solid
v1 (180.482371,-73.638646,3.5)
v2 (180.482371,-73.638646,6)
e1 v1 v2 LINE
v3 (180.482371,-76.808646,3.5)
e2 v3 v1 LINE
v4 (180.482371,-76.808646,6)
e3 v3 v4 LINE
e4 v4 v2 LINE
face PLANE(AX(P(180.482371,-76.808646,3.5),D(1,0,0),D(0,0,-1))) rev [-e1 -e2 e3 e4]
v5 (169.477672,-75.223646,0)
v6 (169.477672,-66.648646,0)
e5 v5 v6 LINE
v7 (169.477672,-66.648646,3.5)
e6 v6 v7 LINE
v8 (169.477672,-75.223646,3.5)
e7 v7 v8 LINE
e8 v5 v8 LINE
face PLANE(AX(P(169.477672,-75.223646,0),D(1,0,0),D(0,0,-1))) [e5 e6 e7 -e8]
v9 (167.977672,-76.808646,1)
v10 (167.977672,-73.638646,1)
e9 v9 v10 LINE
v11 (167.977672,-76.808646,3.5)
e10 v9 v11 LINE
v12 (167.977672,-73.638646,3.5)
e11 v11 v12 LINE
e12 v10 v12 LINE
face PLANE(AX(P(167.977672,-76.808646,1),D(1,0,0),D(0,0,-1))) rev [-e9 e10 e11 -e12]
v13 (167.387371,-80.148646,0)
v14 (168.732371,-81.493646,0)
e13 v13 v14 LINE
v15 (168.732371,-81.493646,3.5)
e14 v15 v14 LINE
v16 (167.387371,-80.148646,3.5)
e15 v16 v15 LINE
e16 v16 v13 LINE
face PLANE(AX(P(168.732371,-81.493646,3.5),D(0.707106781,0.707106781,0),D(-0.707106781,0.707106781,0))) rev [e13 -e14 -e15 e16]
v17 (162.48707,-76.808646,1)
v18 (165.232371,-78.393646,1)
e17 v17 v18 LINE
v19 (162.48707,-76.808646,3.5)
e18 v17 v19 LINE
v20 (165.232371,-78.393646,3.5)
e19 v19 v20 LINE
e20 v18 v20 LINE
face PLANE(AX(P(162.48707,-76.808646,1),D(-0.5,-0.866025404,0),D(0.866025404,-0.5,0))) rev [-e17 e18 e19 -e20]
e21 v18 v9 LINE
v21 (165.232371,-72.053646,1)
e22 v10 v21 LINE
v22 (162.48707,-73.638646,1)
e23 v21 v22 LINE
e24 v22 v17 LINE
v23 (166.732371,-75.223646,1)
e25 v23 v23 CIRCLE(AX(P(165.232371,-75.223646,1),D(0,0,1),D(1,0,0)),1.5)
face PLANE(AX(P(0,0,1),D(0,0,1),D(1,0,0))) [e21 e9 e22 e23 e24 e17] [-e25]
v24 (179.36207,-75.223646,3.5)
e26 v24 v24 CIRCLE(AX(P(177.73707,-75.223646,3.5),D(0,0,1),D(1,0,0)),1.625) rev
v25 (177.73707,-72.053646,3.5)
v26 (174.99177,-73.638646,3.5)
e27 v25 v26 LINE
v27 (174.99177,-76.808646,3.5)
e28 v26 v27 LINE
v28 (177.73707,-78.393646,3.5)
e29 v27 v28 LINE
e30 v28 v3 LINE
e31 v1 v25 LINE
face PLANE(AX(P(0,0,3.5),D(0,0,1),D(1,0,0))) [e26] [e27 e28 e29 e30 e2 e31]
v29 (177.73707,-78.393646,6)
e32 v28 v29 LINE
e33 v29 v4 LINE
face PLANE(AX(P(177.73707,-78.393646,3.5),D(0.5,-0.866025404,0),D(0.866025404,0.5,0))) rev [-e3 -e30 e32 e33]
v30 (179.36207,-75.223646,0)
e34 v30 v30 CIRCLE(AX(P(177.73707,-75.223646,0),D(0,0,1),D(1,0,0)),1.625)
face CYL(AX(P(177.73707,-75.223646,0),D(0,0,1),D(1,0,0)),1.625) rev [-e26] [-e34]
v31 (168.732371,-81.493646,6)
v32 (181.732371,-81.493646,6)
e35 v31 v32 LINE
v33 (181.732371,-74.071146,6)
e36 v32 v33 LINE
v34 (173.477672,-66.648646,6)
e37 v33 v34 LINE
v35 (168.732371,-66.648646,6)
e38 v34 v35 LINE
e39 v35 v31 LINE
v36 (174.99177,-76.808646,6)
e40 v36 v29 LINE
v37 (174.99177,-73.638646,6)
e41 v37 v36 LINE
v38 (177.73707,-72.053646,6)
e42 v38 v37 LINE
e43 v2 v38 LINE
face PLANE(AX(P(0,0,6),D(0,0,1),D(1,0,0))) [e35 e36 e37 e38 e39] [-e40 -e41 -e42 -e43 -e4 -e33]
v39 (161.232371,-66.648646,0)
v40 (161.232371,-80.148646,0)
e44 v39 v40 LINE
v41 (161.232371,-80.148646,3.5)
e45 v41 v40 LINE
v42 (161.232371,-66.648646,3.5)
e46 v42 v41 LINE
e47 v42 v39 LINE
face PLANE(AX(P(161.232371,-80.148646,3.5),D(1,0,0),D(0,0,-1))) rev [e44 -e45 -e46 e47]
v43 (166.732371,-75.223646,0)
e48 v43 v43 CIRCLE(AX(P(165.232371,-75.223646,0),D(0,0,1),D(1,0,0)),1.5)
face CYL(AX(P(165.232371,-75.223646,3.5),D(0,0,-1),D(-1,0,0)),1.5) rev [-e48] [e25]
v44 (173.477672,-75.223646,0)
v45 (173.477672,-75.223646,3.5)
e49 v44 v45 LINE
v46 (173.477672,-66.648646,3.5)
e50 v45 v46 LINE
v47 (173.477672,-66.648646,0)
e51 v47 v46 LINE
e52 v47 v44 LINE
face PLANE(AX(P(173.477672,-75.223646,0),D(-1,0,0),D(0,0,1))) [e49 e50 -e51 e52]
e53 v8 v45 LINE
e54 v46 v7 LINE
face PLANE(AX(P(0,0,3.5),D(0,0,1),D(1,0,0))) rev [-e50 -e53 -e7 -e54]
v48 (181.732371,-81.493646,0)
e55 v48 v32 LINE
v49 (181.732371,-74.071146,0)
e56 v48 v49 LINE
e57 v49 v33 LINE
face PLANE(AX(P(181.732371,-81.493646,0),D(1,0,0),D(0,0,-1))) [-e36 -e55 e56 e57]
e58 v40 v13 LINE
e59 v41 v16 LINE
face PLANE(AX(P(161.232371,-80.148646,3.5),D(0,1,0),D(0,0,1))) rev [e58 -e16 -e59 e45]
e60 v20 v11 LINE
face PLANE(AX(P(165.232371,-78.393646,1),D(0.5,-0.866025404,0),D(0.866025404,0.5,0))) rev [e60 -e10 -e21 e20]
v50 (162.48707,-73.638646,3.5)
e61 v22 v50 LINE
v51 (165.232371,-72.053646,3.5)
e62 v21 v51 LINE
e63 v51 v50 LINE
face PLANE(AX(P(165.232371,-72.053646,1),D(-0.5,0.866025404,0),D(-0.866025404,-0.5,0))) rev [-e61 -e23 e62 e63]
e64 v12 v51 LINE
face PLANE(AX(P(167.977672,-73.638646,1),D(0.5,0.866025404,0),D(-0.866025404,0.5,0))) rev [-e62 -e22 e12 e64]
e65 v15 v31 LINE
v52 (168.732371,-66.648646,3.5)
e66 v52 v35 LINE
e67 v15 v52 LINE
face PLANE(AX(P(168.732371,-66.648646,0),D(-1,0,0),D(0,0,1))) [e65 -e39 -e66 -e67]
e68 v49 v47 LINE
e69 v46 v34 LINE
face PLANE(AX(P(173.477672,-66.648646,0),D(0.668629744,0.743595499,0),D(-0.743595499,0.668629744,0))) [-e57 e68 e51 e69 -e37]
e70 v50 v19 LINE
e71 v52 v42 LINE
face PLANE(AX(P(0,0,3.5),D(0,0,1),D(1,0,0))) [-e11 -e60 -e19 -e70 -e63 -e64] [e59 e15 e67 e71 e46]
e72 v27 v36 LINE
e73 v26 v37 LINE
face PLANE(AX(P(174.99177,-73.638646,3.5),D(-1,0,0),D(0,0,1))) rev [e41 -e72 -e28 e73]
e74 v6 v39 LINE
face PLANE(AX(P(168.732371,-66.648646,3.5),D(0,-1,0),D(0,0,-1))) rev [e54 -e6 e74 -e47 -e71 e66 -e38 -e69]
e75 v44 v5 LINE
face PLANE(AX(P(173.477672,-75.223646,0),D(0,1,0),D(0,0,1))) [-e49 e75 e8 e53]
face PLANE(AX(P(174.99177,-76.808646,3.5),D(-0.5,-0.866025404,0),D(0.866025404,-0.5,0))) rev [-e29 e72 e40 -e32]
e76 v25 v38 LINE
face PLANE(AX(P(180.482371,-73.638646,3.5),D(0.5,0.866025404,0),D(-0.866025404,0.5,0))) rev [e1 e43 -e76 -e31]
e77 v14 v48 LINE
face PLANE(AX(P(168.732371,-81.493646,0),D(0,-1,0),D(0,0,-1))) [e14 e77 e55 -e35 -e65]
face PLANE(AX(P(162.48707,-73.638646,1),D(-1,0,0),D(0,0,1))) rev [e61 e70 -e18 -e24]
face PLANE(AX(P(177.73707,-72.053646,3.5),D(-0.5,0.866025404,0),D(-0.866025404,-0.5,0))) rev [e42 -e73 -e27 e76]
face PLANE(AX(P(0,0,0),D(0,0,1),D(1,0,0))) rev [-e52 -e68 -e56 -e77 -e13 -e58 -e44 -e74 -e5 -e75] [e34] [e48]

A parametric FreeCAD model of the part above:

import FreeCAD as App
import Part
import Sketcher
from FreeCAD import Vector
Q = App.Units.Quantity

doc = App.newDocument("Part")
body = doc.addObject("PartDesign::Body", "Body")

# Sketch on XY plane
sketch1 = body.newObject("Sketcher::SketchObject", "Sketch")
sketch1.AttachmentSupport = (doc.getObject("XY_Plane"), [""])
sketch1.MapMode = "FlatFace"
sketch1.addGeometry([
    Part.LineSegment(Vector(168.7, -66.6, 0), Vector(161.2, -66.6, 0)),  # 0
    Part.LineSegment(Vector(161.2, -66.6, 0), Vector(161.2, -80.1, 0)),  # 1
    Part.LineSegment(Vector(161.2, -80.1, 0), Vector(167.4, -80.1, 0)),  # 2
    Part.LineSegment(Vector(167.4, -80.1, 0), Vector(168.7, -81.5, 0)),  # 3
    Part.LineSegment(Vector(168.7, -81.5, 0), Vector(168.7, -66.6, 0)),  # 4
    Part.Circle(Vector(165.2, -75.2, 0), Vector(0, 0, 1), 1.5),  # 5
], False)
sketch1.addConstraint([
    Sketcher.Constraint("Coincident", 0, 2, 1, 1),
    Sketcher.Constraint("Coincident", 1, 2, 2, 1),
    Sketcher.Constraint("Coincident", 2, 2, 3, 1),
    Sketcher.Constraint("Coincident", 3, 2, 4, 1),
    Sketcher.Constraint("Coincident", 4, 2, 0, 1),
    Sketcher.Constraint("Horizontal", 0),
    Sketcher.Constraint("Vertical", 1),
    Sketcher.Constraint("Horizontal", 2),
    Sketcher.Constraint("Vertical", 4),
    Sketcher.Constraint("Diameter", 5, Q("3 mm")),
    Sketcher.Constraint("Angle", 3, Q("-45 deg")),
    Sketcher.Constraint("DistanceX", 0, 2, 0, 1, Q("7.5 mm")),
    Sketcher.Constraint("DistanceY", 1, 2, 1, 1, Q("13.5 mm")),
    Sketcher.Constraint("DistanceX", 0, 2, 5, 3, Q("4 mm")),
    Sketcher.Constraint("DistanceX", 2, 1, 2, 2, Q("6.155 mm")),
    Sketcher.Constraint("DistanceY", 3, 2, 5, 3, Q("6.27 mm")),
    Sketcher.Constraint("DistanceX", -1, 1, 5, 3, Q("165.232371 mm")),
    Sketcher.Constraint("DistanceY", 5, 3, -1, 1, Q("75.223646 mm")),
])
pad1 = body.newObject("PartDesign::Pad", "Pad")
pad1.Profile = sketch1
pad1.Length = 3.5

# Sketch on XY plane
sketch2 = body.newObject("Sketcher::SketchObject", "Sketch001")
sketch2.AttachmentSupport = (doc.getObject("XY_Plane"), [""])
sketch2.MapMode = "FlatFace"
sketch2.AttachmentOffset = App.Placement(Vector(0, 0, 3.5), App.Rotation())
sketch2.addGeometry([
    Part.LineSegment(Vector(168.7, -81.5, 0), Vector(181.7, -81.5, 0)),  # 0
    Part.LineSegment(Vector(181.7, -81.5, 0), Vector(181.7, -74.1, 0)),  # 1
    Part.LineSegment(Vector(181.7, -74.1, 0), Vector(173.5, -66.6, 0)),  # 2
    Part.LineSegment(Vector(173.5, -66.6, 0), Vector(173.5, -75.2, 0)),  # 3
    Part.LineSegment(Vector(173.5, -75.2, 0), Vector(169.5, -75.2, 0)),  # 4
    Part.LineSegment(Vector(169.5, -75.2, 0), Vector(169.5, -66.6, 0)),  # 5
    Part.LineSegment(Vector(169.5, -66.6, 0), Vector(168.7, -66.6, 0)),  # 6
    Part.LineSegment(Vector(168.7, -66.6, 0), Vector(168.7, -81.5, 0)),  # 7
    Part.Circle(Vector(177.7, -75.2, 0), Vector(0, 0, 1), 1.6),  # 8
], False)
sketch2.addConstraint([
    Sketcher.Constraint("Coincident", 0, 2, 1, 1),
    Sketcher.Constraint("Coincident", 1, 2, 2, 1),
    Sketcher.Constraint("Coincident", 2, 2, 3, 1),
    Sketcher.Constraint("Coincident", 3, 2, 4, 1),
    Sketcher.Constraint("Coincident", 4, 2, 5, 1),
    Sketcher.Constraint("Coincident", 5, 2, 6, 1),
    Sketcher.Constraint("Coincident", 6, 2, 7, 1),
    Sketcher.Constraint("Coincident", 7, 2, 0, 1),
    Sketcher.Constraint("Horizontal", 0),
    Sketcher.Constraint("Vertical", 1),
    Sketcher.Constraint("Vertical", 3),
    Sketcher.Constraint("Horizontal", 4),
    Sketcher.Constraint("Vertical", 5),
    Sketcher.Constraint("Horizontal", 6),
    Sketcher.Constraint("Vertical", 7),
    Sketcher.Constraint("Horizontal", 8, 3, 3, 2),
    Sketcher.Constraint("Horizontal", 2, 2, 5, 2),
    Sketcher.Constraint("Diameter", 8, Q("3.25 mm")),
    Sketcher.Constraint("DistanceX", 0, 1, 0, 2, Q("13 mm")),
    Sketcher.Constraint("DistanceX", 4, 2, 4, 1, Q("4 mm")),
    Sketcher.Constraint("DistanceY", 3, 2, 3, 1, Q("8.575 mm")),
    Sketcher.Constraint("DistanceY", 7, 2, 7, 1, Q("14.845 mm")),
    Sketcher.Constraint("DistanceX", 6, 2, 6, 1, Q("0.745301 mm")),
    Sketcher.Constraint("DistanceY", 1, 1, 1, 2, Q("7.4225 mm")),
    Sketcher.Constraint("DistanceX", 8, 3, 0, 2, Q("3.995301 mm")),
    Sketcher.Constraint("DistanceX", -1, 1, 8, 3, Q("177.73707 mm")),
    Sketcher.Constraint("DistanceY", 8, 3, -1, 1, Q("75.223646 mm")),
])
pad2 = body.newObject("PartDesign::Pad", "Pad001")
pad2.Profile = sketch2
pad2.Type = "TwoLengths"
pad2.Length = 2.5
pad2.Length2 = 3.5

# Sketch on XY plane
sketch3 = body.newObject("Sketcher::SketchObject", "Sketch002")
sketch3.AttachmentSupport = (doc.getObject("XY_Plane"), [""])
sketch3.MapMode = "FlatFace"
sketch3.AttachmentOffset = App.Placement(Vector(0, 0, 6), App.Rotation())
sketch3.addGeometry([
    Part.LineSegment(Vector(177.7, -78.4, 0), Vector(180.5, -76.8, 0)),  # 0
    Part.LineSegment(Vector(180.5, -76.8, 0), Vector(180.5, -73.6, 0)),  # 1
    Part.LineSegment(Vector(180.5, -73.6, 0), Vector(177.7, -72.1, 0)),  # 2
    Part.LineSegment(Vector(177.7, -72.1, 0), Vector(175, -73.6, 0)),  # 3
    Part.LineSegment(Vector(175, -73.6, 0), Vector(175, -76.8, 0)),  # 4
    Part.LineSegment(Vector(175, -76.8, 0), Vector(177.7, -78.4, 0)),  # 5
], False)
sketch3.addConstraint([
    Sketcher.Constraint("Coincident", 0, 2, 1, 1),
    Sketcher.Constraint("Coincident", 1, 2, 2, 1),
    Sketcher.Constraint("Coincident", 2, 2, 3, 1),
    Sketcher.Constraint("Coincident", 3, 2, 4, 1),
    Sketcher.Constraint("Coincident", 4, 2, 5, 1),
    Sketcher.Constraint("Coincident", 5, 2, 0, 1),
    Sketcher.Constraint("Vertical", 1),
    Sketcher.Constraint("Vertical", 4),
    Sketcher.Constraint("Parallel", 0, 3),
    Sketcher.Constraint("Parallel", 2, 5),
    Sketcher.Constraint("Horizontal", 1, 2, 3, 2),
    Sketcher.Constraint("Horizontal", 0, 2, 4, 2),
    Sketcher.Constraint("Vertical", 2, 2, 5, 2),
    Sketcher.Constraint("Angle", 0, Q("30 deg")),
    Sketcher.Constraint("DistanceY", 1, 1, 1, 2, Q("3.17 mm")),
    Sketcher.Constraint("Distance", 0, Q("3.17 mm")),
    Sketcher.Constraint("DistanceX", -1, 1, 0, 2, Q("180.482371 mm")),
    Sketcher.Constraint("DistanceY", 0, 2, -1, 1, Q("76.808646 mm")),
])
pocket1 = body.newObject("PartDesign::Pocket", "Pocket")
pocket1.Profile = sketch3
pocket1.Length = 2.5

# Sketch on XY plane
sketch4 = body.newObject("Sketcher::SketchObject", "Sketch003")
sketch4.AttachmentSupport = (doc.getObject("XY_Plane"), [""])
sketch4.MapMode = "FlatFace"
sketch4.AttachmentOffset = App.Placement(Vector(0, 0, 3.5), App.Rotation())
sketch4.addGeometry([
    Part.LineSegment(Vector(165.2, -78.4, 0), Vector(168, -76.8, 0)),  # 0
    Part.LineSegment(Vector(168, -76.8, 0), Vector(168, -73.6, 0)),  # 1
    Part.LineSegment(Vector(168, -73.6, 0), Vector(165.2, -72.1, 0)),  # 2
    Part.LineSegment(Vector(165.2, -72.1, 0), Vector(162.5, -73.6, 0)),  # 3
    Part.LineSegment(Vector(162.5, -73.6, 0), Vector(162.5, -76.8, 0)),  # 4
    Part.LineSegment(Vector(162.5, -76.8, 0), Vector(165.2, -78.4, 0)),  # 5
], False)
sketch4.addConstraint([
    Sketcher.Constraint("Coincident", 0, 2, 1, 1),
    Sketcher.Constraint("Coincident", 1, 2, 2, 1),
    Sketcher.Constraint("Coincident", 2, 2, 3, 1),
    Sketcher.Constraint("Coincident", 3, 2, 4, 1),
    Sketcher.Constraint("Coincident", 4, 2, 5, 1),
    Sketcher.Constraint("Coincident", 5, 2, 0, 1),
    Sketcher.Constraint("Vertical", 1),
    Sketcher.Constraint("Vertical", 4),
    Sketcher.Constraint("Parallel", 0, 3),
    Sketcher.Constraint("Parallel", 2, 5),
    Sketcher.Constraint("Horizontal", 1, 2, 3, 2),
    Sketcher.Constraint("Horizontal", 0, 2, 4, 2),
    Sketcher.Constraint("Vertical", 2, 2, 5, 2),
    Sketcher.Constraint("Angle", 0, Q("30 deg")),
    Sketcher.Constraint("DistanceY", 1, 1, 1, 2, Q("3.17 mm")),
    Sketcher.Constraint("Distance", 0, Q("3.17 mm")),
    Sketcher.Constraint("DistanceX", -1, 1, 0, 2, Q("167.977672 mm")),
    Sketcher.Constraint("DistanceY", 0, 2, -1, 1, Q("76.808646 mm")),
])
pocket2 = body.newObject("PartDesign::Pocket", "Pocket001")
pocket2.Profile = sketch4
pocket2.Length = 2.5

# Sketch on XY plane
sketch5 = body.newObject("Sketcher::SketchObject", "Sketch004")
sketch5.AttachmentSupport = (doc.getObject("XY_Plane"), [""])
sketch5.MapMode = "FlatFace"
sketch5.AttachmentOffset = App.Placement(Vector(0, 0, 6), App.Rotation())
sketch5.addGeometry([
    Part.LineSegment(Vector(169.5, -66.6, 0), Vector(169.5, -75.2, 0)),
    Part.LineSegment(Vector(169.5, -75.2, 0), Vector(173.5, -75.2, 0)),
    Part.LineSegment(Vector(173.5, -75.2, 0), Vector(173.5, -66.6, 0)),
    Part.LineSegment(Vector(173.5, -66.6, 0), Vector(169.5, -66.6, 0)),
], False)
sketch5.addConstraint([
    Sketcher.Constraint("Coincident", 0, 2, 1, 1),
    Sketcher.Constraint("Coincident", 1, 2, 2, 1),
    Sketcher.Constraint("Coincident", 2, 2, 3, 1),
    Sketcher.Constraint("Coincident", 3, 2, 0, 1),
    Sketcher.Constraint("Vertical", 0),
    Sketcher.Constraint("Horizontal", 1),
    Sketcher.Constraint("Vertical", 2),
    Sketcher.Constraint("Horizontal", 3),
    Sketcher.Constraint("DistanceX", 1, 1, 1, 2, Q("4 mm")),
    Sketcher.Constraint("DistanceY", 0, 2, 0, 1, Q("8.575 mm")),
    Sketcher.Constraint("DistanceX", -1, 1, 0, 2, Q("169.477672 mm")),
    Sketcher.Constraint("DistanceY", 0, 2, -1, 1, Q("75.223646 mm")),
])
pad3 = body.newObject("PartDesign::Pad", "Pad002")
pad3.Profile = sketch5
pad3.Length = 2.5
pad3.Reversed = True

doc.recompute()
